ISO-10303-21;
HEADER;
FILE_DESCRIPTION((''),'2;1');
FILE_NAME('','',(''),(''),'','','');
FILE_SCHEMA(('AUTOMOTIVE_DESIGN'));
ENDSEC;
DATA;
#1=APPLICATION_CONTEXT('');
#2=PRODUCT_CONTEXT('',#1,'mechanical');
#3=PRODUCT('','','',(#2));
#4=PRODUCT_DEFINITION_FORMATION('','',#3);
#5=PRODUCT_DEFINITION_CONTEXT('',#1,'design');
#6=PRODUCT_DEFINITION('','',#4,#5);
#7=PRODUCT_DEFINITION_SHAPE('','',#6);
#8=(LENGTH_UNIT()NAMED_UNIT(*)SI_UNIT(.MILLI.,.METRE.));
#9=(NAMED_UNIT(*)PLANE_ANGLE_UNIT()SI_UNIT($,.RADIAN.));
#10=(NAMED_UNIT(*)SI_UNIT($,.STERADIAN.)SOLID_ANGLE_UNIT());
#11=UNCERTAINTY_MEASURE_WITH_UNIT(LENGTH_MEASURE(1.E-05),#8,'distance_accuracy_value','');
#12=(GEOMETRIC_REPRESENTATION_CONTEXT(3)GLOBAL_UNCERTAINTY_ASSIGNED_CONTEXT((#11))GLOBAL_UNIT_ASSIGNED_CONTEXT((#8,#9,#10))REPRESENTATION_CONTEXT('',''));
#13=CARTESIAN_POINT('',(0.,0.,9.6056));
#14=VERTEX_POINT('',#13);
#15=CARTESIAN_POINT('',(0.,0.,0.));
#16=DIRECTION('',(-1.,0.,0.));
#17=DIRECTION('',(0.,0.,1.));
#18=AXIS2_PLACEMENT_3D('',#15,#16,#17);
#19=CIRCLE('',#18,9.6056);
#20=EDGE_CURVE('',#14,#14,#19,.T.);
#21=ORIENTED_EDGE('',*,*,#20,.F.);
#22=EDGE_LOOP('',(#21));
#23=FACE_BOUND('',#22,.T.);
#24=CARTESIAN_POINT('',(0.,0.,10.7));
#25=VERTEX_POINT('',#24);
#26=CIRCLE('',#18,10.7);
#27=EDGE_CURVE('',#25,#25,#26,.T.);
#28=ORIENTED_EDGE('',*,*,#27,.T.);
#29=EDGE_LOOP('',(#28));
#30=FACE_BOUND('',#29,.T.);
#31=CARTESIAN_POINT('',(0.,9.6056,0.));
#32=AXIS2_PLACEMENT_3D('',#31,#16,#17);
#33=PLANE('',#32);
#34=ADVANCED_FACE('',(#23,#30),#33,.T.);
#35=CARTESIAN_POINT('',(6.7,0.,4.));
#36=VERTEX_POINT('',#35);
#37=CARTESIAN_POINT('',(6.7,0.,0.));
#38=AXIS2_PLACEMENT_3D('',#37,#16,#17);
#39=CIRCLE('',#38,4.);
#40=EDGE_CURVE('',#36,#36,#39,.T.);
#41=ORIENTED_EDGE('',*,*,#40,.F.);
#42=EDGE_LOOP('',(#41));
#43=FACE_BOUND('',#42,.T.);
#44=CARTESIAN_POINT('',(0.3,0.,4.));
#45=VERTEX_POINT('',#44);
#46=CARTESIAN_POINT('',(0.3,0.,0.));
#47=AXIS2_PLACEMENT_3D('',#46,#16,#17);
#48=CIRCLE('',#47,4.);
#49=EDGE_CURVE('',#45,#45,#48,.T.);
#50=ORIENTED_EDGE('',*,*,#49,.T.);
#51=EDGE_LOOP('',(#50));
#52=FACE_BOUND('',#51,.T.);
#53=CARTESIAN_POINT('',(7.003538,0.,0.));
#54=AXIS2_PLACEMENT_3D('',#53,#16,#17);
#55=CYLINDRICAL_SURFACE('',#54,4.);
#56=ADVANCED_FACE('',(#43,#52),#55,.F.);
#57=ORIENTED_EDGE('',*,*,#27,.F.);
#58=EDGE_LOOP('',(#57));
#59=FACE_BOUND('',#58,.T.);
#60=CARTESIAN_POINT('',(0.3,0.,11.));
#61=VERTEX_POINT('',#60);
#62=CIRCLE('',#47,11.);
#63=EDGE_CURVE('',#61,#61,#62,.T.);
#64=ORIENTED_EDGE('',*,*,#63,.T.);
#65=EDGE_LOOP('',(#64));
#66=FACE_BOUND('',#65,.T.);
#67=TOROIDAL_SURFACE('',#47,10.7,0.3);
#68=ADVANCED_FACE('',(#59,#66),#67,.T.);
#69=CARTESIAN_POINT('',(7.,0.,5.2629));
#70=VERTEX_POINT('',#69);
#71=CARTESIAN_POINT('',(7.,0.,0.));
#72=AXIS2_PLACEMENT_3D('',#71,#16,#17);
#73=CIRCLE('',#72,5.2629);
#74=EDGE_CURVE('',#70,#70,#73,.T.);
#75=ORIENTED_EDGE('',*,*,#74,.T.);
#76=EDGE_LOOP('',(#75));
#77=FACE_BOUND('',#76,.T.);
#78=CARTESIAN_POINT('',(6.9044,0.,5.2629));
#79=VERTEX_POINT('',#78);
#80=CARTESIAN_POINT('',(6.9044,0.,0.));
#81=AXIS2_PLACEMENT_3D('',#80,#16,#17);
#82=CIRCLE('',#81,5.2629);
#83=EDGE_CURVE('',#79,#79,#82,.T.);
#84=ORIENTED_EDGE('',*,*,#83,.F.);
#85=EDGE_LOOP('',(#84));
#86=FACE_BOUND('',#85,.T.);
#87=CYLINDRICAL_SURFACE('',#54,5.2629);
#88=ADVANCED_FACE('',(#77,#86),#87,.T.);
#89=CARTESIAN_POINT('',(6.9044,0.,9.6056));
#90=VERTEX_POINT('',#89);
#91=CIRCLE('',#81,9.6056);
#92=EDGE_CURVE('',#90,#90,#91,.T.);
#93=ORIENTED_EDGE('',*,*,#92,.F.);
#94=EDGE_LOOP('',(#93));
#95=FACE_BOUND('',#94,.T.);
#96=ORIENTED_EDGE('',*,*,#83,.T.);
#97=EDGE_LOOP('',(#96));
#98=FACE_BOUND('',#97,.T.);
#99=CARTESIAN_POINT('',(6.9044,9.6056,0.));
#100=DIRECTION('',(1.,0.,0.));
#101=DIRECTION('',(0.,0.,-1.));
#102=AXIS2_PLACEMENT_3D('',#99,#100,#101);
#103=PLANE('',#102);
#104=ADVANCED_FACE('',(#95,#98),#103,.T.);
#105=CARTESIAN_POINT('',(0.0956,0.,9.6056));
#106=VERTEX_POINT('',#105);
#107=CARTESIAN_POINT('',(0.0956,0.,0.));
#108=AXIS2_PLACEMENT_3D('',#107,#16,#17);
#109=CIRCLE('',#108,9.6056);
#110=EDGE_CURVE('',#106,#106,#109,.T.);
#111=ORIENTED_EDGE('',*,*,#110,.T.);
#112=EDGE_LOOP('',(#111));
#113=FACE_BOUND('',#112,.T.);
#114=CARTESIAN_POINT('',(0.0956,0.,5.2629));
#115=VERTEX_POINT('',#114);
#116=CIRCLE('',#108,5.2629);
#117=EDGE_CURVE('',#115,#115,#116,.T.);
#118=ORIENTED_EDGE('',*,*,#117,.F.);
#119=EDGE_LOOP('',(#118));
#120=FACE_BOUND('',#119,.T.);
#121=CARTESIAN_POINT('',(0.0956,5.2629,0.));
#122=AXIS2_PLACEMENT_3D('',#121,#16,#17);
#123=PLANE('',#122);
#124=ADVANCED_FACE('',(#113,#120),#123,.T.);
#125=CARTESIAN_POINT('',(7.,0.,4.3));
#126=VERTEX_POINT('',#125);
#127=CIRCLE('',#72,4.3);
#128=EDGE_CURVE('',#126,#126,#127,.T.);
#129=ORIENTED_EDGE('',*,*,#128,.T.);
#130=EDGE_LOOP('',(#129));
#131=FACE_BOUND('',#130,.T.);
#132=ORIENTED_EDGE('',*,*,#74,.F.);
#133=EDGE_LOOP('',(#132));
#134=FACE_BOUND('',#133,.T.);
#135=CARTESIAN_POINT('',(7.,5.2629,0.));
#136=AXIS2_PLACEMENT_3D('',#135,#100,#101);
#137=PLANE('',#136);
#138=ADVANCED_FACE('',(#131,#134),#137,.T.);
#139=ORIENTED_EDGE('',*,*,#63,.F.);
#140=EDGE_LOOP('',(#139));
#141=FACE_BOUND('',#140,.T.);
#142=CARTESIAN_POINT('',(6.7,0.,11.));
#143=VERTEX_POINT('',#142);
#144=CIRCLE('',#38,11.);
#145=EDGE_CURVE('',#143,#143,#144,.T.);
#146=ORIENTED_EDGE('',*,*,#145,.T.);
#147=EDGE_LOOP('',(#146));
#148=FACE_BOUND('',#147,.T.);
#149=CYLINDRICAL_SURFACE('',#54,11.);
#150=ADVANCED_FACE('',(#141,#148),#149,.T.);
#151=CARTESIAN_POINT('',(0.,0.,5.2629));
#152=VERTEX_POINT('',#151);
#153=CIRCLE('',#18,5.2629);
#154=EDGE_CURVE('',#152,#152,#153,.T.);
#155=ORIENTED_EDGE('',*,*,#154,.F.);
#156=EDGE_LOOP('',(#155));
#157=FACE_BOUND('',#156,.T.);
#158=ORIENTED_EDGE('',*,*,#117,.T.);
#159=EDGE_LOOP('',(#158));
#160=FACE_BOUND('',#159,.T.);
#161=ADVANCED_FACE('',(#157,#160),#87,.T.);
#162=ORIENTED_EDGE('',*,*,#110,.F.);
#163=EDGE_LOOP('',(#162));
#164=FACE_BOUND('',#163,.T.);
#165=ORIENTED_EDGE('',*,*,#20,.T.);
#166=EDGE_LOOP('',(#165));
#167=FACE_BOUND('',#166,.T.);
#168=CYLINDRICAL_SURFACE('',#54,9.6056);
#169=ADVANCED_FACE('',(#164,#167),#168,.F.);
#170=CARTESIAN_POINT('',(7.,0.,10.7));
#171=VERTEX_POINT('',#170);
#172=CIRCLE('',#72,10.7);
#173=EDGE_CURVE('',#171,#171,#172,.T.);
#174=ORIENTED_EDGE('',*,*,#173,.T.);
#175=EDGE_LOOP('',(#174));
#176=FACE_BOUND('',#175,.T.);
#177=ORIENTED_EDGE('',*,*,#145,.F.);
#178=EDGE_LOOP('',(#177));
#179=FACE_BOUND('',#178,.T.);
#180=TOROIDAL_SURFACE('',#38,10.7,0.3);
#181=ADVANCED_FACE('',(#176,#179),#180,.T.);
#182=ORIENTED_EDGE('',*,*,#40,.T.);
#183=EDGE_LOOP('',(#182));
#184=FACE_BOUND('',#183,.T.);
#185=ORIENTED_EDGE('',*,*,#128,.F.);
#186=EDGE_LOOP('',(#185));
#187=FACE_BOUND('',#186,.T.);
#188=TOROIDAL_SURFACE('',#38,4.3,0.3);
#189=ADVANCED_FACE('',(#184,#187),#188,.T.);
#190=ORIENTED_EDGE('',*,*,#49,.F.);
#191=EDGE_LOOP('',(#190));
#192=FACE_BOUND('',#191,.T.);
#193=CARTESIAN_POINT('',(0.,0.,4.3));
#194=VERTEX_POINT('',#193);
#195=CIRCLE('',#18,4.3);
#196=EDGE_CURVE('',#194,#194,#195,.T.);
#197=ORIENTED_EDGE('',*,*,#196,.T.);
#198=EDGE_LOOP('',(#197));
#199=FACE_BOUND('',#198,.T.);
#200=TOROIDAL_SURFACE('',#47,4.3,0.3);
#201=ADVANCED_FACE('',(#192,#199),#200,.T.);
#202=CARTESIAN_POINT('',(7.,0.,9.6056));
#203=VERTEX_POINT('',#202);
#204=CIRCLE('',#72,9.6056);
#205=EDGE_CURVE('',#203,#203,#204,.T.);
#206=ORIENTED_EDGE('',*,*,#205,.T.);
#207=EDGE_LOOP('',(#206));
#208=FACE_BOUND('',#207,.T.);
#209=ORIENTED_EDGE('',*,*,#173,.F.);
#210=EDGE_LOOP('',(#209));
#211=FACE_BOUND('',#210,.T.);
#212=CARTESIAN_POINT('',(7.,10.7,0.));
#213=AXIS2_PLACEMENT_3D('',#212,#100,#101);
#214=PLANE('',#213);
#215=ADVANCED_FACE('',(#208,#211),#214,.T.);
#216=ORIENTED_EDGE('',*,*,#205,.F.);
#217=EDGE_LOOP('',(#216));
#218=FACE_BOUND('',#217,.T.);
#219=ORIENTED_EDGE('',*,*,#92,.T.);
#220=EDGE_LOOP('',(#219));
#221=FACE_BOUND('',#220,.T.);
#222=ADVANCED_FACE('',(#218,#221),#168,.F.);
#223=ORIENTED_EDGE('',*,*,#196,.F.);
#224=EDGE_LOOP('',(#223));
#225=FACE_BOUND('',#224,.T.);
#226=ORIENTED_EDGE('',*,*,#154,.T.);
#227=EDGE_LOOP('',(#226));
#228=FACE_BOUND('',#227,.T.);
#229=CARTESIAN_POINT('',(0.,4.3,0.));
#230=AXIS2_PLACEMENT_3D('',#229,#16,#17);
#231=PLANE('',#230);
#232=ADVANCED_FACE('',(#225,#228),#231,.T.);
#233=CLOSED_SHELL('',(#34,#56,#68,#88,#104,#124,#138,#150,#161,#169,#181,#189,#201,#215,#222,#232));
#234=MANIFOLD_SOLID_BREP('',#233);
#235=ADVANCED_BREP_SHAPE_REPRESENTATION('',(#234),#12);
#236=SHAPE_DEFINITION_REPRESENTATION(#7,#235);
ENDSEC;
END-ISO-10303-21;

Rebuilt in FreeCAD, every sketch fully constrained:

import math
import FreeCAD as App
import Part
import Sketcher

V = App.Vector

doc = App.newDocument("Part")
body = doc.addObject("PartDesign::Body", "Body")

# Sketch on XY plane
sketch1 = doc.addObject("Sketcher::SketchObject", "Sketch")
body.addObject(sketch1)
sketch1.AttachmentSupport = (doc.XY_Plane, [""])
sketch1.MapMode = "FlatFace"
sketch1.addGeometry(Part.LineSegment(V(6.7, 4, 0), V(0.3, 4, 0)), False)
sketch1.addGeometry(Part.ArcOfCircle(Part.Circle(V(0.3, 4.3, 0), V(0, 0, 1), 0.3), math.radians(-180), math.radians(-90)), False)
sketch1.addGeometry(Part.LineSegment(V(0, 4.3, 0), V(0, 5.26, 0)), False)
sketch1.addGeometry(Part.LineSegment(V(0, 5.26, 0), V(0.1, 5.26, 0)), False)
sketch1.addGeometry(Part.LineSegment(V(0.1, 5.26, 0), V(0.1, 9.61, 0)), False)
sketch1.addGeometry(Part.LineSegment(V(0.1, 9.61, 0), V(0, 9.61, 0)), False)
sketch1.addGeometry(Part.LineSegment(V(0, 9.61, 0), V(0, 10.7, 0)), False)
sketch1.addGeometry(Part.ArcOfCircle(Part.Circle(V(0.3, 10.7, 0), V(0, 0, 1), 0.3), math.radians(90), math.radians(180)), False)
sketch1.addGeometry(Part.LineSegment(V(0.3, 11, 0), V(6.7, 11, 0)), False)
sketch1.addGeometry(Part.ArcOfCircle(Part.Circle(V(6.7, 10.7, 0), V(0, 0, 1), 0.3), math.radians(0), math.radians(90)), False)
sketch1.addGeometry(Part.LineSegment(V(7, 10.7, 0), V(7, 9.61, 0)), False)
sketch1.addGeometry(Part.LineSegment(V(7, 9.61, 0), V(6.9, 9.61, 0)), False)
sketch1.addGeometry(Part.LineSegment(V(6.9, 9.61, 0), V(6.9, 5.26, 0)), False)
sketch1.addGeometry(Part.LineSegment(V(6.9, 5.26, 0), V(7, 5.26, 0)), False)
sketch1.addGeometry(Part.LineSegment(V(7, 5.26, 0), V(7, 4.3, 0)), False)
sketch1.addGeometry(Part.ArcOfCircle(Part.Circle(V(6.7, 4.3, 0), V(0, 0, 1), 0.3), math.radians(-90), math.radians(0)), False)
sketch1.addConstraint(Sketcher.Constraint("Tangent", 0, 2, 1, 2))
sketch1.addConstraint(Sketcher.Constraint("Tangent", 1, 1, 2, 1))
sketch1.addConstraint(Sketcher.Constraint("Coincident", 2, 2, 3, 1))
sketch1.addConstraint(Sketcher.Constraint("Coincident", 3, 2, 4, 1))
sketch1.addConstraint(Sketcher.Constraint("Coincident", 4, 2, 5, 1))
sketch1.addConstraint(Sketcher.Constraint("Coincident", 5, 2, 6, 1))
sketch1.addConstraint(Sketcher.Constraint("Tangent", 6, 2, 7, 2))
sketch1.addConstraint(Sketcher.Constraint("Tangent", 7, 1, 8, 1))
sketch1.addConstraint(Sketcher.Constraint("Tangent", 8, 2, 9, 2))
sketch1.addConstraint(Sketcher.Constraint("Tangent", 9, 1, 10, 1))
sketch1.addConstraint(Sketcher.Constraint("Coincident", 10, 2, 11, 1))
sketch1.addConstraint(Sketcher.Constraint("Coincident", 11, 2, 12, 1))
sketch1.addConstraint(Sketcher.Constraint("Coincident", 12, 2, 13, 1))
sketch1.addConstraint(Sketcher.Constraint("Coincident", 13, 2, 14, 1))
sketch1.addConstraint(Sketcher.Constraint("Tangent", 14, 2, 15, 2))
sketch1.addConstraint(Sketcher.Constraint("Tangent", 15, 1, 0, 1))
sketch1.addConstraint(Sketcher.Constraint("Horizontal", 0))
sketch1.addConstraint(Sketcher.Constraint("Vertical", 2))
sketch1.addConstraint(Sketcher.Constraint("Horizontal", 3))
sketch1.addConstraint(Sketcher.Constraint("Vertical", 4))
sketch1.addConstraint(Sketcher.Constraint("Horizontal", 5))
sketch1.addConstraint(Sketcher.Constraint("Vertical", 6))
sketch1.addConstraint(Sketcher.Constraint("Horizontal", 8))
sketch1.addConstraint(Sketcher.Constraint("Vertical", 10))
sketch1.addConstraint(Sketcher.Constraint("Horizontal", 11))
sketch1.addConstraint(Sketcher.Constraint("Vertical", 12))
sketch1.addConstraint(Sketcher.Constraint("Horizontal", 13))
sketch1.addConstraint(Sketcher.Constraint("Vertical", 14))
sketch1.addConstraint(Sketcher.Constraint("Equal", 1, 7))
sketch1.addConstraint(Sketcher.Constraint("Equal", 7, 9))
sketch1.addConstraint(Sketcher.Constraint("Equal", 9, 15))
sketch1.addConstraint(Sketcher.Constraint("PointOnObject", 1, 1, -2))
sketch1.addConstraint(Sketcher.Constraint("PointOnObject", 5, 2, -2))
sketch1.addConstraint(Sketcher.Constraint("Horizontal", 5, 2, 10, 2))
sketch1.addConstraint(Sketcher.Constraint("Horizontal", 3, 2, 12, 2))
sketch1.addConstraint(Sketcher.Constraint("Vertical", 9, 3, 15, 3))
sketch1.addConstraint(Sketcher.Constraint("Equal", 5, 11))
sketch1.addConstraint(Sketcher.Constraint("Radius", 1, 0.3))
sketch1.addConstraint(Sketcher.Constraint("DistanceX", 0, 2, 0, 1, 6.4))
sketch1.addConstraint(Sketcher.Constraint("DistanceY", -1, 1, 0, 2, 4.0))
sketch1.addConstraint(Sketcher.Constraint("DistanceY", -1, 1, 7, 1, 11.0))
sketch1.addConstraint(Sketcher.Constraint("DistanceX", 3, 1, 3, 2, 0.0956))
sketch1.addConstraint(Sketcher.Constraint("DistanceY", 2, 1, 2, 2, 0.9629))
sketch1.addConstraint(Sketcher.Constraint("DistanceY", 4, 1, 4, 2, 4.3427))
revolution = doc.addObject("PartDesign::Revolution", "Revolution")
body.addObject(revolution)
revolution.Profile = sketch1
revolution.ReferenceAxis = (sketch1, ["H_Axis"])
revolution.Angle = 360

doc.recompute()
